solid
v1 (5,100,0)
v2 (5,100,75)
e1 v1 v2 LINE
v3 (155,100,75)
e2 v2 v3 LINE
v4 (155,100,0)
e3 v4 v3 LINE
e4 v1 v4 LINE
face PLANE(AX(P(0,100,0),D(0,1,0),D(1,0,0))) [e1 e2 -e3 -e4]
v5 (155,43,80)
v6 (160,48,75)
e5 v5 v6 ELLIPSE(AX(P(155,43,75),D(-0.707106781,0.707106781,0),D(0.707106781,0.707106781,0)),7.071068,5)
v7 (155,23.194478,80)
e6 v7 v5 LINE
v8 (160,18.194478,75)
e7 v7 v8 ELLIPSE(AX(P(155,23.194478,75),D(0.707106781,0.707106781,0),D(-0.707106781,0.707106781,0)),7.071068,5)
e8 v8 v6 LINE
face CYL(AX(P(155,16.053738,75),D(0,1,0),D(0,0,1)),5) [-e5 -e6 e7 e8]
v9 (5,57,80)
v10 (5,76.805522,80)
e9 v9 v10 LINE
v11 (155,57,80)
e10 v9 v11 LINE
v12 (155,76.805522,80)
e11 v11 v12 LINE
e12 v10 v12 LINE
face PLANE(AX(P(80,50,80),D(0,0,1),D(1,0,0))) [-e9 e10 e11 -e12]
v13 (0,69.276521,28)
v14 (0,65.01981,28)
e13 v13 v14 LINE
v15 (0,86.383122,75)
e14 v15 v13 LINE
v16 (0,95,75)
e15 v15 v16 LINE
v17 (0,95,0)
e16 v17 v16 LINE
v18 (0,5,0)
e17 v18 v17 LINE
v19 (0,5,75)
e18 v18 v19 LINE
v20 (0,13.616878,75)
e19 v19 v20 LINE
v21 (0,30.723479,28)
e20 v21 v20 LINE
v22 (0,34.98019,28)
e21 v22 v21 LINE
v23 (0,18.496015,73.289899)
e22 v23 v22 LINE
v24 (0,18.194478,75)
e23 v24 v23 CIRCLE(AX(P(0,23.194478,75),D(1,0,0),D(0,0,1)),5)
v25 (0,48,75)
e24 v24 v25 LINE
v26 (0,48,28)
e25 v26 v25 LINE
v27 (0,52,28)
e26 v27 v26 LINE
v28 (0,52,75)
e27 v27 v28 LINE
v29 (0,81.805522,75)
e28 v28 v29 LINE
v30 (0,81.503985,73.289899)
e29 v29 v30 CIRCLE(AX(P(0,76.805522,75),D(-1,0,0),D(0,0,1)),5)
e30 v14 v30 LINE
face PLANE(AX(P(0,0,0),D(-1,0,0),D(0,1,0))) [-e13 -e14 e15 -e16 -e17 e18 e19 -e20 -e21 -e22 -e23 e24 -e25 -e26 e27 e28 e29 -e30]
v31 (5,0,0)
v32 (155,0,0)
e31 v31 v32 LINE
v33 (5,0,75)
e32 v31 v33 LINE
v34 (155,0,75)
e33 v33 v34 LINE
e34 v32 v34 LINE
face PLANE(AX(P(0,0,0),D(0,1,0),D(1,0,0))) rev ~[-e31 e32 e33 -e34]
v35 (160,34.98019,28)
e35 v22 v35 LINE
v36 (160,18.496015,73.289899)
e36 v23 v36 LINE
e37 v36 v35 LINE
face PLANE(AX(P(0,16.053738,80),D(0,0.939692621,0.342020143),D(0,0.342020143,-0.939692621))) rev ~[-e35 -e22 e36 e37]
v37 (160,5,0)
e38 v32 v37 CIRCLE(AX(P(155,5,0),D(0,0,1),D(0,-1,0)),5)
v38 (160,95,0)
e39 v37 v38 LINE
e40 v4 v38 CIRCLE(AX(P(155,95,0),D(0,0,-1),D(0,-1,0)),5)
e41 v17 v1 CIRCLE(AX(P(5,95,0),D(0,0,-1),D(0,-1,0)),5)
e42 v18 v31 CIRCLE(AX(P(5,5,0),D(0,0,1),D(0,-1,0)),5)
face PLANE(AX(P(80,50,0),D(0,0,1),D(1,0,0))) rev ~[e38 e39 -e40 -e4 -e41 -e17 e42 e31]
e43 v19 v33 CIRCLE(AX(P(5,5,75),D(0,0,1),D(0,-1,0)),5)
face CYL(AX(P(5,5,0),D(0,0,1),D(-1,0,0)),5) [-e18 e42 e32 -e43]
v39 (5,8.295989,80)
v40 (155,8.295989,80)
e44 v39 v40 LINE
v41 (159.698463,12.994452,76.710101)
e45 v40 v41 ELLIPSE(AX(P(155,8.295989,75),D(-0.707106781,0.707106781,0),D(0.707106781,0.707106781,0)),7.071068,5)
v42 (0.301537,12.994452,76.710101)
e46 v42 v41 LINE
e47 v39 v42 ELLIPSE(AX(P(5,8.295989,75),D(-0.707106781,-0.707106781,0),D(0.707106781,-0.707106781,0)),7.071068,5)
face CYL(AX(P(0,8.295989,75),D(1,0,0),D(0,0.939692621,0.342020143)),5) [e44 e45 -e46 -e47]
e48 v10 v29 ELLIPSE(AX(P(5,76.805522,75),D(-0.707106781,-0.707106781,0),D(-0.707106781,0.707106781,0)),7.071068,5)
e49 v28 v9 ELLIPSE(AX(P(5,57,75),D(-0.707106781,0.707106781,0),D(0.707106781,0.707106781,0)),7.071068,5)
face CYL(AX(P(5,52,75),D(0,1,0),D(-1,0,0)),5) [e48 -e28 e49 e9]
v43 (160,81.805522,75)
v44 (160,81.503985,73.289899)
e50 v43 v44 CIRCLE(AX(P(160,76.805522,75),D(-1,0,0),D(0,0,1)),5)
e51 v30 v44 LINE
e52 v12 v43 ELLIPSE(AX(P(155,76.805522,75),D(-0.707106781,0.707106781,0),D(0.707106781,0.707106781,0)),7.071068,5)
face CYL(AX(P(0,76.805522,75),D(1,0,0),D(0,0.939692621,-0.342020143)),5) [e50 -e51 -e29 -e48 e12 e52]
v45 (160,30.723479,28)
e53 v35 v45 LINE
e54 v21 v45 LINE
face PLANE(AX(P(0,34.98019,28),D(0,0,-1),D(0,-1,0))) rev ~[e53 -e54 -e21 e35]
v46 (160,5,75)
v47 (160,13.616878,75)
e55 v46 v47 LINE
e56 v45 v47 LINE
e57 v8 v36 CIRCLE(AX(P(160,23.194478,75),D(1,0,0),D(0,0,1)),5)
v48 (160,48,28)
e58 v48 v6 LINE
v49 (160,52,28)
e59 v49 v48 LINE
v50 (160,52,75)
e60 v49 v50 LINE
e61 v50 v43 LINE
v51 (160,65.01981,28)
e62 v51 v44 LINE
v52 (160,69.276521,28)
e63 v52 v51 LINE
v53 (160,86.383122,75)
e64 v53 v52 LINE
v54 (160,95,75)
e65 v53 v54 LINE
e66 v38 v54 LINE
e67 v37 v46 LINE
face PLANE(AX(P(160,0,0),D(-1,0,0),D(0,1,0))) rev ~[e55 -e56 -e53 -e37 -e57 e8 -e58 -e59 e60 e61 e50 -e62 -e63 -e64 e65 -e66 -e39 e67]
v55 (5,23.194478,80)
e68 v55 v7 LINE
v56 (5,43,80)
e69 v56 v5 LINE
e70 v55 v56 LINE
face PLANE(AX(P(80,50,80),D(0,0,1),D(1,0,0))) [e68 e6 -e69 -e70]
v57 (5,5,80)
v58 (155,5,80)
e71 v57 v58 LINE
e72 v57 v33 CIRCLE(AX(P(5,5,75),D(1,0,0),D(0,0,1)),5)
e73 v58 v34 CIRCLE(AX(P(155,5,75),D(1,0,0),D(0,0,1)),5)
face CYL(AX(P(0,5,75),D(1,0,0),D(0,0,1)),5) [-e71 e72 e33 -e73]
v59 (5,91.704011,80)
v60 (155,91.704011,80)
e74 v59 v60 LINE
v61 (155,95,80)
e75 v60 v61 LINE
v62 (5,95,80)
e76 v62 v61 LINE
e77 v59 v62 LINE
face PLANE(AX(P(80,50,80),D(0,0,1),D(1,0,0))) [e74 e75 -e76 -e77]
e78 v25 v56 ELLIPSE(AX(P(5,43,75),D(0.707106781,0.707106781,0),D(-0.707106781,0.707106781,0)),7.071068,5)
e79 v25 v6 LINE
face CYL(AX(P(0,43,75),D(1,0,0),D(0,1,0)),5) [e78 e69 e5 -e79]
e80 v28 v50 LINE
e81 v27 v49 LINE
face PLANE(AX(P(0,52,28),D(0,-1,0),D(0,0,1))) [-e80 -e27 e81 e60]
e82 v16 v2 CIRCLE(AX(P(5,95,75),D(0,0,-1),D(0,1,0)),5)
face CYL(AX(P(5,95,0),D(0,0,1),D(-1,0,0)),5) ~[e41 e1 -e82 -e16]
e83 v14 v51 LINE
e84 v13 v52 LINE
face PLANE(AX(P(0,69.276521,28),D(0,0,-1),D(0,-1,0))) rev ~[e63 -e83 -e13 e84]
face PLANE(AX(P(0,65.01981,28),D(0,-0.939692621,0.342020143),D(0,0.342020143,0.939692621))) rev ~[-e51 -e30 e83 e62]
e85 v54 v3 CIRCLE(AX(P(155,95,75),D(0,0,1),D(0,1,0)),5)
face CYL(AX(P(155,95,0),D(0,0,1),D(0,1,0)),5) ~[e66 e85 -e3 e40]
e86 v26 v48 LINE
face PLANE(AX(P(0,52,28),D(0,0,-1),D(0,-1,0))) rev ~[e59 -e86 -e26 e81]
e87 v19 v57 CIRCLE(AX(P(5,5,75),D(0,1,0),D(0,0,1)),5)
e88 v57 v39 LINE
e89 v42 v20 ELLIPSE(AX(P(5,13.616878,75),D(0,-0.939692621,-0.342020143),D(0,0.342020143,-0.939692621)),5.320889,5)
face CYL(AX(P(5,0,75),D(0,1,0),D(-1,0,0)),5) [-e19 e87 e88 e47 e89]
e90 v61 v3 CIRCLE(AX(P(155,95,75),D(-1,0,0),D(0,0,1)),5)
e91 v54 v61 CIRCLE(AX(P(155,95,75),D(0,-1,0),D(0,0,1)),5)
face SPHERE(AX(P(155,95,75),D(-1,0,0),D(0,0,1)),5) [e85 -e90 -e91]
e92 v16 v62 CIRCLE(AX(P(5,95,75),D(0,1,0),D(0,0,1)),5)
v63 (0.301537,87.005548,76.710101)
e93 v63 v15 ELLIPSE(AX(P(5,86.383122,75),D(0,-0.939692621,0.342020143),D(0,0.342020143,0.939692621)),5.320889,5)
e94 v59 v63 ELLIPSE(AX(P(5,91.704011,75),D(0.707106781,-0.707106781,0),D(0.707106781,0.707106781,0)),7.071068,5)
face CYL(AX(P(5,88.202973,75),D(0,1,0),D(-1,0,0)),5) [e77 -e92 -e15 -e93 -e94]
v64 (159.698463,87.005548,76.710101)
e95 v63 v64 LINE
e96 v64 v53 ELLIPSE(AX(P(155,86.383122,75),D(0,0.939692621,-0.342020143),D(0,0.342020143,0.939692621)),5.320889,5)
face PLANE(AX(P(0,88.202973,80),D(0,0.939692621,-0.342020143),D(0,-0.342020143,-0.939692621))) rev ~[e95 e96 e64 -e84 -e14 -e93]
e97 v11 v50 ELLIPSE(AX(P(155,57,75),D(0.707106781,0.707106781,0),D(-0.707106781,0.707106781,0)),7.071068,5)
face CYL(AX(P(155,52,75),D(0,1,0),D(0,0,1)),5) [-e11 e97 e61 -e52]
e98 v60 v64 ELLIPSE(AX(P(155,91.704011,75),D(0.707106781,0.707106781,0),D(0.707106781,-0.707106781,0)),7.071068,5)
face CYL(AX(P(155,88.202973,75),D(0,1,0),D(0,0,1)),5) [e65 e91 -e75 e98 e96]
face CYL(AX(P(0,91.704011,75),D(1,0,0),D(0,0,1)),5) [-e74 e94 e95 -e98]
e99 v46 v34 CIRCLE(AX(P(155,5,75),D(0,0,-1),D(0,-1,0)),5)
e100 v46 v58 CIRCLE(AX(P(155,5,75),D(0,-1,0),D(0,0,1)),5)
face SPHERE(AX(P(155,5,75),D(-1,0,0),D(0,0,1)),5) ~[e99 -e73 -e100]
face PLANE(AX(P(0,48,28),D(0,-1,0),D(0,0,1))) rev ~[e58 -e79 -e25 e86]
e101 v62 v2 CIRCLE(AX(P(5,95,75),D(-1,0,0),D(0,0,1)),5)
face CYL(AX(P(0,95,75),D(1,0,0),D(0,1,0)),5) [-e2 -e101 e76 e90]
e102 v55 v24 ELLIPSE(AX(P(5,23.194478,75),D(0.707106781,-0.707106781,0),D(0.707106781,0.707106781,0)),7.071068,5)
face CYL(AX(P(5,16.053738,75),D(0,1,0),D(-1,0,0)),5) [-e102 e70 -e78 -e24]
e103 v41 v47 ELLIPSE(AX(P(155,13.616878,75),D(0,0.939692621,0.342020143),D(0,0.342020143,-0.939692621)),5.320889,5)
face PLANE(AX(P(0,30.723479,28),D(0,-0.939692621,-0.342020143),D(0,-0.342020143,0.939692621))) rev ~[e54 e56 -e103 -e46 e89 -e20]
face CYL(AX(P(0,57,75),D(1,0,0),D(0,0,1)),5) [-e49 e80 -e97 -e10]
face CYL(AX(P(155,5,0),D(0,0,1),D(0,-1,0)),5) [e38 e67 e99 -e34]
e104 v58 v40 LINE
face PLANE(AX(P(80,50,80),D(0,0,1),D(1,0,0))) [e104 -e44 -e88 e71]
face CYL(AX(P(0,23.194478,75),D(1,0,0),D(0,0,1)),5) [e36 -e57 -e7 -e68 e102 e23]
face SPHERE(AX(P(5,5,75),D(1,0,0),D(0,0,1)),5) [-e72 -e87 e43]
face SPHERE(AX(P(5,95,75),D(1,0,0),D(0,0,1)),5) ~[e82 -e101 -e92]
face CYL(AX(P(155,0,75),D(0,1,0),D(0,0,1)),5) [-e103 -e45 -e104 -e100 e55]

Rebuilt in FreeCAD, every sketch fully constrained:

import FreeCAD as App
import Part
import Sketcher
from FreeCAD import Vector
Q = App.Units.Quantity


def edges_at(feature, points):
    """Names of the edges that pass closest to the given points."""
    edges = feature.Shape.Edges
    near = lambda p: min(range(len(edges)), key=lambda i: edges[i].distToShape(Part.Vertex(*p))[0])
    return sorted({f"Edge{near(p) + 1}" for p in points})

doc = App.newDocument("Part")
body = doc.addObject("PartDesign::Body", "Body")

# Sketch on XY plane
sketch1 = body.newObject("Sketcher::SketchObject", "Sketch")
sketch1.AttachmentSupport = (doc.getObject("XY_Plane"), [""])
sketch1.MapMode = "FlatFace"
sketch1.addGeometry(Part.LineSegment(Vector(0, 100, 0), Vector(0, 0, 0)), False)
sketch1.addGeometry(Part.LineSegment(Vector(0, 0, 0), Vector(160, 0, 0)), False)
sketch1.addGeometry(Part.LineSegment(Vector(160, 0, 0), Vector(160, 100, 0)), False)
sketch1.addGeometry(Part.LineSegment(Vector(160, 100, 0), Vector(0, 100, 0)), False)
sketch1.addConstraint(Sketcher.Constraint("Coincident", 0, 2, 1, 1))
sketch1.addConstraint(Sketcher.Constraint("Coincident", 1, 2, 2, 1))
sketch1.addConstraint(Sketcher.Constraint("Coincident", 2, 2, 3, 1))
sketch1.addConstraint(Sketcher.Constraint("Coincident", 3, 2, 0, 1))
sketch1.addConstraint(Sketcher.Constraint("Vertical", 0))
sketch1.addConstraint(Sketcher.Constraint("Horizontal", 1))
sketch1.addConstraint(Sketcher.Constraint("Vertical", 2))
sketch1.addConstraint(Sketcher.Constraint("Horizontal", 3))
sketch1.addConstraint(Sketcher.Constraint("Coincident", 0, 2, -1, 1))
sketch1.addConstraint(Sketcher.Constraint("DistanceX", 1, 1, 1, 2, Q("160 mm")))
sketch1.addConstraint(Sketcher.Constraint("DistanceY", 0, 2, 0, 1, Q("100 mm")))
pad1 = body.newObject("PartDesign::Pad", "Pad")
pad1.Profile = sketch1
pad1.Length = 80

# Sketch on YZ plane
sketch2 = body.newObject("Sketcher::SketchObject", "Sketch001")
sketch2.AttachmentSupport = (doc.getObject("YZ_Plane"), [""])
sketch2.MapMode = "FlatFace"
sketch2.addGeometry(Part.LineSegment(Vector(65, 28, 0), Vector(83.9, 80, 0)), False)
sketch2.addGeometry(Part.LineSegment(Vector(83.9, 80, 0), Vector(88.2, 80, 0)), False)
sketch2.addGeometry(Part.LineSegment(Vector(88.2, 80, 0), Vector(69.3, 28, 0)), False)
sketch2.addGeometry(Part.LineSegment(Vector(69.3, 28, 0), Vector(65, 28, 0)), False)
sketch2.addGeometry(Part.LineSegment(Vector(52, 80, 0), Vector(52, 28, 0)), False)
sketch2.addGeometry(Part.LineSegment(Vector(52, 28, 0), Vector(48, 28, 0)), False)
sketch2.addGeometry(Part.LineSegment(Vector(48, 28, 0), Vector(48, 80, 0)), False)
sketch2.addGeometry(Part.LineSegment(Vector(48, 80, 0), Vector(52, 80, 0)), False)
sketch2.addGeometry(Part.LineSegment(Vector(30.7, 28, 0), Vector(11.8, 80, 0)), False)
sketch2.addGeometry(Part.LineSegment(Vector(11.8, 80, 0), Vector(16.1, 80, 0)), False)
sketch2.addGeometry(Part.LineSegment(Vector(16.1, 80, 0), Vector(35, 28, 0)), False)
sketch2.addGeometry(Part.LineSegment(Vector(35, 28, 0), Vector(30.7, 28, 0)), False)
sketch2.addConstraint(Sketcher.Constraint("Coincident", 0, 2, 1, 1))
sketch2.addConstraint(Sketcher.Constraint("Coincident", 1, 2, 2, 1))
sketch2.addConstraint(Sketcher.Constraint("Coincident", 2, 2, 3, 1))
sketch2.addConstraint(Sketcher.Constraint("Coincident", 3, 2, 0, 1))
sketch2.addConstraint(Sketcher.Constraint("Coincident", 4, 2, 5, 1))
sketch2.addConstraint(Sketcher.Constraint("Coincident", 5, 2, 6, 1))
sketch2.addConstraint(Sketcher.Constraint("Coincident", 6, 2, 7, 1))
sketch2.addConstraint(Sketcher.Constraint("Coincident", 7, 2, 4, 1))
sketch2.addConstraint(Sketcher.Constraint("Coincident", 8, 2, 9, 1))
sketch2.addConstraint(Sketcher.Constraint("Coincident", 9, 2, 10, 1))
sketch2.addConstraint(Sketcher.Constraint("Coincident", 10, 2, 11, 1))
sketch2.addConstraint(Sketcher.Constraint("Coincident", 11, 2, 8, 1))
sketch2.addConstraint(Sketcher.Constraint("Horizontal", 1))
sketch2.addConstraint(Sketcher.Constraint("Horizontal", 3))
sketch2.addConstraint(Sketcher.Constraint("Vertical", 4))
sketch2.addConstraint(Sketcher.Constraint("Horizontal", 5))
sketch2.addConstraint(Sketcher.Constraint("Vertical", 6))
sketch2.addConstraint(Sketcher.Constraint("Horizontal", 7))
sketch2.addConstraint(Sketcher.Constraint("Horizontal", 9))
sketch2.addConstraint(Sketcher.Constraint("Horizontal", 11))
sketch2.addConstraint(Sketcher.Constraint("Parallel", 0, 2))
sketch2.addConstraint(Sketcher.Constraint("Parallel", 8, 10))
sketch2.addConstraint(Sketcher.Constraint("Horizontal", 3, 2, 4, 2))
sketch2.addConstraint(Sketcher.Constraint("Horizontal", 1, 2, 6, 2))
sketch2.addConstraint(Sketcher.Constraint("Horizontal", 7, 2, 8, 2))
sketch2.addConstraint(Sketcher.Constraint("Horizontal", 5, 2, 10, 2))
sketch2.addConstraint(Sketcher.Constraint("Equal", 3, 9))
sketch2.addConstraint(Sketcher.Constraint("Equal", 2, 8))
sketch2.addConstraint(Sketcher.Constraint("DistanceX", 5, 2, 5, 1, Q("4 mm")))
sketch2.addConstraint(Sketcher.Constraint("DistanceY", 4, 2, 4, 1, Q("52 mm")))
sketch2.addConstraint(Sketcher.Constraint("Angle", 0, Q("70 deg")))
sketch2.addConstraint(Sketcher.Constraint("DistanceY", -1, 1, 0, 2, Q("80 mm")))
sketch2.addConstraint(Sketcher.Constraint("DistanceX", -1, 1, 4, 2, Q("52 mm")))
sketch2.addConstraint(Sketcher.Constraint("DistanceX", 1, 1, 1, 2, Q("4.256711 mm")))
sketch2.addConstraint(Sketcher.Constraint("DistanceX", -1, 1, 2, 2, Q("69.276521 mm")))
sketch2.addConstraint(Sketcher.Constraint("DistanceX", -1, 1, 10, 2, Q("34.98019 mm")))
pocket1 = body.newObject("PartDesign::Pocket", "Pocket")
pocket1.Profile = sketch2
pocket1.Type = "ThroughAll"
pocket1.Reversed = True
doc.recompute()

fillet = body.newObject("PartDesign::Fillet", "Fillet")
fillet.Base = (pocket1, edges_at(pocket1, [
    (80, 0, 80),
    (80, 100, 80),
    (160, 94.101, 80),
    (160, 67.973, 80),
    (160, 32.027, 80),
    (160, 5.899, 80),
    (0, 5.899, 80),
    (0, 32.027, 80),
    (0, 67.973, 80),
    (0, 94.101, 80),
    (160, 100, 40),
    (0, 100, 40),
    (160, 0, 40),
    (0, 0, 40),
    (80, 48, 80),
    (80, 52, 80),
    (80, 83.946, 80),
    (80, 88.203, 80),
    (80, 16.054, 80),
    (80, 11.797, 80),
]))
fillet.Radius = 5

doc.recompute()
